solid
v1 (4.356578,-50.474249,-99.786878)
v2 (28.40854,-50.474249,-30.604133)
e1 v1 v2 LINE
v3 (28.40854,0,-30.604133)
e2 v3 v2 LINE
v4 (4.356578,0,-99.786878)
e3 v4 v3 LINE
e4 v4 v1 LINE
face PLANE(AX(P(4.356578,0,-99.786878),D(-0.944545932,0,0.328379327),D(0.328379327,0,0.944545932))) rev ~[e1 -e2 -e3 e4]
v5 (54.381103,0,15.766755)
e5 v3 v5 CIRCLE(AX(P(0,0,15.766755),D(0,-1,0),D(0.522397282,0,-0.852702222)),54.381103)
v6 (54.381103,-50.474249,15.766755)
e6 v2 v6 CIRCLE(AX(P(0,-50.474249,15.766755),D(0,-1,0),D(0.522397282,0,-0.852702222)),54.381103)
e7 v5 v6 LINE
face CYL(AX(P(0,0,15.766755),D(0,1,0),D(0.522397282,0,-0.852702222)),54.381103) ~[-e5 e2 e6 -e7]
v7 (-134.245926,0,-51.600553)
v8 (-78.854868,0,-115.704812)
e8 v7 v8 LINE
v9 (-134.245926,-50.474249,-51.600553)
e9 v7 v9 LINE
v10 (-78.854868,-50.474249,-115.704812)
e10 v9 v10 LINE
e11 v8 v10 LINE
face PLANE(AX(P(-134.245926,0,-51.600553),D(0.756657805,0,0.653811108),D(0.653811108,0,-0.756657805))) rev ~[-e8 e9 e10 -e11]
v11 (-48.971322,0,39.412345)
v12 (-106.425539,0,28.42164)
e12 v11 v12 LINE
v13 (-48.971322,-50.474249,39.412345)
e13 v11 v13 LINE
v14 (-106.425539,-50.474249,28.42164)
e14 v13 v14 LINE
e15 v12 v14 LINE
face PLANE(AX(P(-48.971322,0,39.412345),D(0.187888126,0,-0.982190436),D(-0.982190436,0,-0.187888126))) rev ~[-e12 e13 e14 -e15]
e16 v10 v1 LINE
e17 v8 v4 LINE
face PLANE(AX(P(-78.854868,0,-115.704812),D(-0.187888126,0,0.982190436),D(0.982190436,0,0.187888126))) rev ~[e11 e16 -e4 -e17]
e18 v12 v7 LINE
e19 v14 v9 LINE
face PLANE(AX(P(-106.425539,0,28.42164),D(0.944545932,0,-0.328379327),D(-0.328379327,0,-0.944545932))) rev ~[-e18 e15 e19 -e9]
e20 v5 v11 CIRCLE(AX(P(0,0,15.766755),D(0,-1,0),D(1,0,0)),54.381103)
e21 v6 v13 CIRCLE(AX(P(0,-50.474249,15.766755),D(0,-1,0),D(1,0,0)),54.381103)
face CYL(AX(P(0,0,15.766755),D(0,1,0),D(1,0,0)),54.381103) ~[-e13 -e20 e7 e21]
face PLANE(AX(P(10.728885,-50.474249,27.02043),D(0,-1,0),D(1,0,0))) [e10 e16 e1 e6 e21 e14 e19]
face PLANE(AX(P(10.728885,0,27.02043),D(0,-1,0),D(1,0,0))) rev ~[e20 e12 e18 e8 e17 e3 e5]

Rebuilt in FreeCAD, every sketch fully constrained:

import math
import FreeCAD as App
import Part
import Sketcher

doc = App.newDocument("Part")
params = doc.addObject("Spreadsheet::Sheet", "Params")
for row, (alias, value) in enumerate([
    ("pad1_length", "50.474249 mm"),
], start=1):
    params.set(f"A{row}", alias)
    params.set(f"B{row}", "=" + value)
    params.setAlias(f"B{row}", alias)

body = doc.addObject("PartDesign::Body", "Body")

sketch1 = body.newObject("Sketcher::SketchObject", "Sketch")
sketch1.AttachmentSupport = (doc.getObject("XZ_Plane"), [""])
sketch1.MapMode = "FlatFace"
sketch1.addGeometry([
    Part.ArcOfCircle(Part.Circle(App.Vector(0, 16, 0), App.Vector(0, 0, 1), 54), math.radians(-59), math.radians(0)),
    Part.ArcOfCircle(Part.Circle(App.Vector(0, 16, 0), App.Vector(0, 0, 1), 54), math.radians(0), math.radians(154)),
    Part.LineSegment(App.Vector(-49, 39, 0), App.Vector(-106, 28, 0)),
    Part.LineSegment(App.Vector(-106, 28, 0), App.Vector(-134, -52, 0)),
    Part.LineSegment(App.Vector(-134, -52, 0), App.Vector(-79, -116, 0)),
    Part.LineSegment(App.Vector(-79, -116, 0), App.Vector(4, -100, 0)),
    Part.LineSegment(App.Vector(4, -100, 0), App.Vector(28, -31, 0)),
], False)
sketch1.addConstraint([
    Sketcher.Constraint("Tangent", 0, 2, 1, 1),
    Sketcher.Constraint("Coincident", 1, 2, 2, 1),
    Sketcher.Constraint("Coincident", 2, 2, 3, 1),
    Sketcher.Constraint("Coincident", 3, 2, 4, 1),
    Sketcher.Constraint("Coincident", 4, 2, 5, 1),
    Sketcher.Constraint("Coincident", 5, 2, 6, 1),
    Sketcher.Constraint("Coincident", 6, 2, 0, 1),
    Sketcher.Constraint("Equal", 0, 1),
    Sketcher.Constraint("PointOnObject", 0, 3, -2),
    Sketcher.Constraint("Parallel", 2, 5),
    Sketcher.Constraint("Parallel", 3, 6),
    Sketcher.Constraint("Horizontal", 1, 3, 0, 2),
    Sketcher.Constraint("Equal", 3, 4),
    Sketcher.Constraint("Equal", 4, 5),
    Sketcher.Constraint("Radius", 0, 54.381103),
    Sketcher.Constraint("DistanceX", 2, 2, -1, 1, 106.425539),
    Sketcher.Constraint("DistanceY", -1, 1, 2, 2, 28.42164),
    Sketcher.Constraint("DistanceY", 4, 2, -1, 1, 115.704812),
    Sketcher.Constraint("DistanceX", -1, 1, 6, 2, 28.40854),
    Sketcher.Constraint("DistanceY", 0, 3, 1, 2, 23.64559),
    Sketcher.Constraint("DistanceX", 3, 2, 0, 2, 188.627029),
    Sketcher.Constraint("DistanceX", 3, 2, 4, 2, 55.391058),
])
pad1 = body.newObject("PartDesign::Pad", "Pad")
pad1.Profile = sketch1
pad1.setExpression("Length", "Params.pad1_length")

doc.recompute()
